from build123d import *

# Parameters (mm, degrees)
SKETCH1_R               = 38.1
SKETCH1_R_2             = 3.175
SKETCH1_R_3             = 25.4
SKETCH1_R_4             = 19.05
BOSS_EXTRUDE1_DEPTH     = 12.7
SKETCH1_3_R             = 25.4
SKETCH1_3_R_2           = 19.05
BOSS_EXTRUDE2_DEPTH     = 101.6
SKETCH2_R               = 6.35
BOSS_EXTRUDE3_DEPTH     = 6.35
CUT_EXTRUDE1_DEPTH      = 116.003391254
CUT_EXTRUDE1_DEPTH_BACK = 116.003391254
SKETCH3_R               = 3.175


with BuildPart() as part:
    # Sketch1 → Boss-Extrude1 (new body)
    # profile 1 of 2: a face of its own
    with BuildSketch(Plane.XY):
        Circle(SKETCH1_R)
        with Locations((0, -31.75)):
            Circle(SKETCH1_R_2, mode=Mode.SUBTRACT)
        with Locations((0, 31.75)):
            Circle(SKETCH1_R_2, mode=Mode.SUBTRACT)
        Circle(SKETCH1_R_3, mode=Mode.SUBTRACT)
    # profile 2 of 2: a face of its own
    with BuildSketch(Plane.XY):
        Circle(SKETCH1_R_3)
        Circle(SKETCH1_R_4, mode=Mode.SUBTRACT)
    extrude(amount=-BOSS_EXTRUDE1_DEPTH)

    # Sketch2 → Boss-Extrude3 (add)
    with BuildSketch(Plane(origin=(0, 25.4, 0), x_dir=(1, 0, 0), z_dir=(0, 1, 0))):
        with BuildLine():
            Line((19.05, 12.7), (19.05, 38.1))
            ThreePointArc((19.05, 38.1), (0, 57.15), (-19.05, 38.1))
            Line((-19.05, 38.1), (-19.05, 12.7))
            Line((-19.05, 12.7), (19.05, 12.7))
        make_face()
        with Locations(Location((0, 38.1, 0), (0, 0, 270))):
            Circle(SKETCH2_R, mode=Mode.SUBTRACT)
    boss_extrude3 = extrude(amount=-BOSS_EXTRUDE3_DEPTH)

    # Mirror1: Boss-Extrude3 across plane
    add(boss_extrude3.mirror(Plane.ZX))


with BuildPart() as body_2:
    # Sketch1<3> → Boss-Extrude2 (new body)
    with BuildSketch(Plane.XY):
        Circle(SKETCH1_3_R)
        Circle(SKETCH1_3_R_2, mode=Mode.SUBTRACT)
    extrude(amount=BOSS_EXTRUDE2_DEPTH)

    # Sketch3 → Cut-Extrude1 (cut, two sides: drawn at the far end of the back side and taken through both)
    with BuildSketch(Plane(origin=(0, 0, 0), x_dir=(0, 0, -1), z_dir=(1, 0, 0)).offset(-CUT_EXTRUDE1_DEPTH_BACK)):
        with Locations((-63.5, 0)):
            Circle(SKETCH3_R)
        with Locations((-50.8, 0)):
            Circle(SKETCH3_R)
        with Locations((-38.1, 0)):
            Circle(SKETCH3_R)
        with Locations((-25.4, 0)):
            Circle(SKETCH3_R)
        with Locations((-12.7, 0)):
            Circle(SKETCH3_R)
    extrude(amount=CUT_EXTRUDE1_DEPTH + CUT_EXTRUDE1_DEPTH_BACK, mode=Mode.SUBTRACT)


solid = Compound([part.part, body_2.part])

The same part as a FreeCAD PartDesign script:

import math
import FreeCAD as App
import Part
import Sketcher

V = App.Vector
Q = App.Units.Quantity

doc = App.newDocument("Part")
body = doc.addObject("PartDesign::Body", "Body")

# Sketch on XY plane
sketch1 = body.newObject("Sketcher::SketchObject", "Sketch")
sketch1.AttachmentSupport = (doc.getObject("XY_Plane"), [""])
sketch1.MapMode = "FlatFace"
sketch1.addGeometry(Part.Circle(V(0, 0, 0), V(0, 0, 1), 38.1), False)
sketch1.addGeometry(Part.Circle(V(0, -31.8, 0), V(0, 0, 1), 3.2), False)
sketch1.addGeometry(Part.Circle(V(0, 31.8, 0), V(0, 0, 1), 3.2), False)
sketch1.addGeometry(Part.Circle(V(0, 0, 0), V(0, 0, 1), 19.1), False)
sketch1.addConstraint(Sketcher.Constraint("Coincident", 0, 3, -1, 1))
sketch1.addConstraint(Sketcher.Constraint("Coincident", 3, 3, -1, 1))
sketch1.addConstraint(Sketcher.Constraint("Equal", 1, 2))
sketch1.addConstraint(Sketcher.Constraint("Symmetric", 1, 3, 2, 3, -1, 1))
sketch1.addConstraint(Sketcher.Constraint("PointOnObject", 1, 3, -2))
sketch1.addConstraint(Sketcher.Constraint("Diameter", 0, Q("3 in")))
sketch1.addConstraint(Sketcher.Constraint("Diameter", 3, Q("1.5 in")))
sketch1.addConstraint(Sketcher.Constraint("Diameter", 1, Q("0.25 in")))
sketch1.addConstraint(Sketcher.Constraint("DistanceY", 1, 3, 2, 3, Q("2.5 in")))
pad1 = body.newObject("PartDesign::Pad", "Pad")
pad1.Profile = sketch1
pad1.Length = Q("0.5 in")
pad1.Reversed = True

# Sketch on XZ plane
sketch2 = body.newObject("Sketcher::SketchObject", "Sketch001")
sketch2.AttachmentSupport = (doc.getObject("XZ_Plane"), [""])
sketch2.MapMode = "FlatFace"
sketch2.AttachmentOffset = App.Placement(V(0, 0, -1 * 25.4), App.Rotation())
sketch2.addGeometry(Part.LineSegment(V(19, -13, 0), V(19, -38, 0)), False)
sketch2.addGeometry(Part.ArcOfCircle(Part.Circle(V(0, -38, 0), V(0, 0, 1), 19), math.radians(180), math.radians(360)), False)
sketch2.addGeometry(Part.LineSegment(V(-19, -38, 0), V(-19, -13, 0)), False)
sketch2.addGeometry(Part.LineSegment(V(-19, -13, 0), V(19, -13, 0)), False)
sketch2.addGeometry(Part.Circle(V(0, -38, 0), V(0, 0, 1), 6), False)
sketch2.addConstraint(Sketcher.Constraint("Tangent", 0, 2, 1, 2))
sketch2.addConstraint(Sketcher.Constraint("Tangent", 1, 1, 2, 1))
sketch2.addConstraint(Sketcher.Constraint("Coincident", 2, 2, 3, 1))
sketch2.addConstraint(Sketcher.Constraint("Coincident", 3, 2, 0, 1))
sketch2.addConstraint(Sketcher.Constraint("Vertical", 0))
sketch2.addConstraint(Sketcher.Constraint("Vertical", 2))
sketch2.addConstraint(Sketcher.Constraint("Horizontal", 3))
sketch2.addConstraint(Sketcher.Constraint("Coincident", 4, 3, 1, 3))
sketch2.addConstraint(Sketcher.Constraint("PointOnObject", 1, 3, -2))
sketch2.addConstraint(Sketcher.Constraint("Diameter", 4, Q("0.5 in")))
sketch2.addConstraint(Sketcher.Constraint("DistanceY", 0, 2, 0, 1, Q("1 in")))
sketch2.addConstraint(Sketcher.Constraint("Radius", 1, Q("0.75 in")))
sketch2.addConstraint(Sketcher.Constraint("DistanceY", 1, 3, -1, 1, Q("1.5 in")))
pad2 = body.newObject("PartDesign::Pad", "Pad001")
pad2.Profile = sketch2
pad2.Length = Q("0.25 in")
doc.recompute()

mirrored = body.newObject("PartDesign::Mirrored", "Mirrored")
mirrored.Originals = [pad2]
mirrored.MirrorPlane = (doc.getObject("XZ_Plane"), [""])
body.Tip = mirrored
body2 = doc.addObject("PartDesign::Body", "Body001")

# Sketch on XY plane
sketch3 = body2.newObject("Sketcher::SketchObject", "Sketch002")
sketch3.AttachmentSupport = (doc.getObject("XY_Plane001"), [""])
sketch3.MapMode = "FlatFace"
sketch3.addGeometry(Part.Circle(V(0, 0, 0), V(0, 0, 1), 25), False)
sketch3.addGeometry(Part.Circle(V(0, 0, 0), V(0, 0, 1), 19), False)
sketch3.addConstraint(Sketcher.Constraint("Coincident", 0, 3, -1, 1))
sketch3.addConstraint(Sketcher.Constraint("Coincident", 1, 3, -1, 1))
sketch3.addConstraint(Sketcher.Constraint("Diameter", 0, Q("2 in")))
sketch3.addConstraint(Sketcher.Constraint("Diameter", 1, Q("1.5 in")))
pad3 = body2.newObject("PartDesign::Pad", "Pad002")
pad3.Profile = sketch3
pad3.Length = Q("4 in")

# Sketch on YZ plane
sketch4 = body2.newObject("Sketcher::SketchObject", "Sketch003")
sketch4.AttachmentSupport = (doc.getObject("YZ_Plane001"), [""])
sketch4.MapMode = "FlatFace"
sketch4.addGeometry(Part.Circle(V(0, 63.5, 0), V(0, 0, 1), 3.2), False)
sketch4.addGeometry(Part.Circle(V(0, 50.8, 0), V(0, 0, 1), 3.2), False)
sketch4.addGeometry(Part.Circle(V(0, 38.1, 0), V(0, 0, 1), 3.2), False)
sketch4.addGeometry(Part.Circle(V(0, 25.4, 0), V(0, 0, 1), 3.2), False)
sketch4.addGeometry(Part.Circle(V(0, 12.7, 0), V(0, 0, 1), 3.2), False)
sketch4.addConstraint(Sketcher.Constraint("Equal", 0, 1))
sketch4.addConstraint(Sketcher.Constraint("Equal", 1, 2))
sketch4.addConstraint(Sketcher.Constraint("Equal", 2, 3))
sketch4.addConstraint(Sketcher.Constraint("Equal", 3, 4))
sketch4.addConstraint(Sketcher.Constraint("PointOnObject", 0, 3, -2))
sketch4.addConstraint(Sketcher.Constraint("PointOnObject", 1, 3, -2))
sketch4.addConstraint(Sketcher.Constraint("PointOnObject", 2, 3, -2))
sketch4.addConstraint(Sketcher.Constraint("PointOnObject", 3, 3, -2))
sketch4.addConstraint(Sketcher.Constraint("PointOnObject", 4, 3, -2))
sketch4.addConstraint(Sketcher.Constraint("Diameter", 0, Q("0.25 in")))
sketch4.addConstraint(Sketcher.Constraint("DistanceY", -1, 1, 1, 3, Q("2 in")))
sketch4.addConstraint(Sketcher.Constraint("DistanceY", -1, 1, 3, 3, Q("1 in")))
sketch4.addConstraint(Sketcher.Constraint("DistanceY", 2, 3, 0, 3, Q("1 in")))
sketch4.addConstraint(Sketcher.Constraint("DistanceY", 4, 3, 2, 3, Q("1 in")))
sketch4.addConstraint(Sketcher.Constraint("DistanceY", -1, 1, 0, 3, Q("2.5 in")))
pocket1 = body2.newObject("PartDesign::Pocket", "Pocket")
pocket1.Profile = sketch4
pocket1.Type = "ThroughAll"
pocket1.Midplane = True

doc.recompute()
